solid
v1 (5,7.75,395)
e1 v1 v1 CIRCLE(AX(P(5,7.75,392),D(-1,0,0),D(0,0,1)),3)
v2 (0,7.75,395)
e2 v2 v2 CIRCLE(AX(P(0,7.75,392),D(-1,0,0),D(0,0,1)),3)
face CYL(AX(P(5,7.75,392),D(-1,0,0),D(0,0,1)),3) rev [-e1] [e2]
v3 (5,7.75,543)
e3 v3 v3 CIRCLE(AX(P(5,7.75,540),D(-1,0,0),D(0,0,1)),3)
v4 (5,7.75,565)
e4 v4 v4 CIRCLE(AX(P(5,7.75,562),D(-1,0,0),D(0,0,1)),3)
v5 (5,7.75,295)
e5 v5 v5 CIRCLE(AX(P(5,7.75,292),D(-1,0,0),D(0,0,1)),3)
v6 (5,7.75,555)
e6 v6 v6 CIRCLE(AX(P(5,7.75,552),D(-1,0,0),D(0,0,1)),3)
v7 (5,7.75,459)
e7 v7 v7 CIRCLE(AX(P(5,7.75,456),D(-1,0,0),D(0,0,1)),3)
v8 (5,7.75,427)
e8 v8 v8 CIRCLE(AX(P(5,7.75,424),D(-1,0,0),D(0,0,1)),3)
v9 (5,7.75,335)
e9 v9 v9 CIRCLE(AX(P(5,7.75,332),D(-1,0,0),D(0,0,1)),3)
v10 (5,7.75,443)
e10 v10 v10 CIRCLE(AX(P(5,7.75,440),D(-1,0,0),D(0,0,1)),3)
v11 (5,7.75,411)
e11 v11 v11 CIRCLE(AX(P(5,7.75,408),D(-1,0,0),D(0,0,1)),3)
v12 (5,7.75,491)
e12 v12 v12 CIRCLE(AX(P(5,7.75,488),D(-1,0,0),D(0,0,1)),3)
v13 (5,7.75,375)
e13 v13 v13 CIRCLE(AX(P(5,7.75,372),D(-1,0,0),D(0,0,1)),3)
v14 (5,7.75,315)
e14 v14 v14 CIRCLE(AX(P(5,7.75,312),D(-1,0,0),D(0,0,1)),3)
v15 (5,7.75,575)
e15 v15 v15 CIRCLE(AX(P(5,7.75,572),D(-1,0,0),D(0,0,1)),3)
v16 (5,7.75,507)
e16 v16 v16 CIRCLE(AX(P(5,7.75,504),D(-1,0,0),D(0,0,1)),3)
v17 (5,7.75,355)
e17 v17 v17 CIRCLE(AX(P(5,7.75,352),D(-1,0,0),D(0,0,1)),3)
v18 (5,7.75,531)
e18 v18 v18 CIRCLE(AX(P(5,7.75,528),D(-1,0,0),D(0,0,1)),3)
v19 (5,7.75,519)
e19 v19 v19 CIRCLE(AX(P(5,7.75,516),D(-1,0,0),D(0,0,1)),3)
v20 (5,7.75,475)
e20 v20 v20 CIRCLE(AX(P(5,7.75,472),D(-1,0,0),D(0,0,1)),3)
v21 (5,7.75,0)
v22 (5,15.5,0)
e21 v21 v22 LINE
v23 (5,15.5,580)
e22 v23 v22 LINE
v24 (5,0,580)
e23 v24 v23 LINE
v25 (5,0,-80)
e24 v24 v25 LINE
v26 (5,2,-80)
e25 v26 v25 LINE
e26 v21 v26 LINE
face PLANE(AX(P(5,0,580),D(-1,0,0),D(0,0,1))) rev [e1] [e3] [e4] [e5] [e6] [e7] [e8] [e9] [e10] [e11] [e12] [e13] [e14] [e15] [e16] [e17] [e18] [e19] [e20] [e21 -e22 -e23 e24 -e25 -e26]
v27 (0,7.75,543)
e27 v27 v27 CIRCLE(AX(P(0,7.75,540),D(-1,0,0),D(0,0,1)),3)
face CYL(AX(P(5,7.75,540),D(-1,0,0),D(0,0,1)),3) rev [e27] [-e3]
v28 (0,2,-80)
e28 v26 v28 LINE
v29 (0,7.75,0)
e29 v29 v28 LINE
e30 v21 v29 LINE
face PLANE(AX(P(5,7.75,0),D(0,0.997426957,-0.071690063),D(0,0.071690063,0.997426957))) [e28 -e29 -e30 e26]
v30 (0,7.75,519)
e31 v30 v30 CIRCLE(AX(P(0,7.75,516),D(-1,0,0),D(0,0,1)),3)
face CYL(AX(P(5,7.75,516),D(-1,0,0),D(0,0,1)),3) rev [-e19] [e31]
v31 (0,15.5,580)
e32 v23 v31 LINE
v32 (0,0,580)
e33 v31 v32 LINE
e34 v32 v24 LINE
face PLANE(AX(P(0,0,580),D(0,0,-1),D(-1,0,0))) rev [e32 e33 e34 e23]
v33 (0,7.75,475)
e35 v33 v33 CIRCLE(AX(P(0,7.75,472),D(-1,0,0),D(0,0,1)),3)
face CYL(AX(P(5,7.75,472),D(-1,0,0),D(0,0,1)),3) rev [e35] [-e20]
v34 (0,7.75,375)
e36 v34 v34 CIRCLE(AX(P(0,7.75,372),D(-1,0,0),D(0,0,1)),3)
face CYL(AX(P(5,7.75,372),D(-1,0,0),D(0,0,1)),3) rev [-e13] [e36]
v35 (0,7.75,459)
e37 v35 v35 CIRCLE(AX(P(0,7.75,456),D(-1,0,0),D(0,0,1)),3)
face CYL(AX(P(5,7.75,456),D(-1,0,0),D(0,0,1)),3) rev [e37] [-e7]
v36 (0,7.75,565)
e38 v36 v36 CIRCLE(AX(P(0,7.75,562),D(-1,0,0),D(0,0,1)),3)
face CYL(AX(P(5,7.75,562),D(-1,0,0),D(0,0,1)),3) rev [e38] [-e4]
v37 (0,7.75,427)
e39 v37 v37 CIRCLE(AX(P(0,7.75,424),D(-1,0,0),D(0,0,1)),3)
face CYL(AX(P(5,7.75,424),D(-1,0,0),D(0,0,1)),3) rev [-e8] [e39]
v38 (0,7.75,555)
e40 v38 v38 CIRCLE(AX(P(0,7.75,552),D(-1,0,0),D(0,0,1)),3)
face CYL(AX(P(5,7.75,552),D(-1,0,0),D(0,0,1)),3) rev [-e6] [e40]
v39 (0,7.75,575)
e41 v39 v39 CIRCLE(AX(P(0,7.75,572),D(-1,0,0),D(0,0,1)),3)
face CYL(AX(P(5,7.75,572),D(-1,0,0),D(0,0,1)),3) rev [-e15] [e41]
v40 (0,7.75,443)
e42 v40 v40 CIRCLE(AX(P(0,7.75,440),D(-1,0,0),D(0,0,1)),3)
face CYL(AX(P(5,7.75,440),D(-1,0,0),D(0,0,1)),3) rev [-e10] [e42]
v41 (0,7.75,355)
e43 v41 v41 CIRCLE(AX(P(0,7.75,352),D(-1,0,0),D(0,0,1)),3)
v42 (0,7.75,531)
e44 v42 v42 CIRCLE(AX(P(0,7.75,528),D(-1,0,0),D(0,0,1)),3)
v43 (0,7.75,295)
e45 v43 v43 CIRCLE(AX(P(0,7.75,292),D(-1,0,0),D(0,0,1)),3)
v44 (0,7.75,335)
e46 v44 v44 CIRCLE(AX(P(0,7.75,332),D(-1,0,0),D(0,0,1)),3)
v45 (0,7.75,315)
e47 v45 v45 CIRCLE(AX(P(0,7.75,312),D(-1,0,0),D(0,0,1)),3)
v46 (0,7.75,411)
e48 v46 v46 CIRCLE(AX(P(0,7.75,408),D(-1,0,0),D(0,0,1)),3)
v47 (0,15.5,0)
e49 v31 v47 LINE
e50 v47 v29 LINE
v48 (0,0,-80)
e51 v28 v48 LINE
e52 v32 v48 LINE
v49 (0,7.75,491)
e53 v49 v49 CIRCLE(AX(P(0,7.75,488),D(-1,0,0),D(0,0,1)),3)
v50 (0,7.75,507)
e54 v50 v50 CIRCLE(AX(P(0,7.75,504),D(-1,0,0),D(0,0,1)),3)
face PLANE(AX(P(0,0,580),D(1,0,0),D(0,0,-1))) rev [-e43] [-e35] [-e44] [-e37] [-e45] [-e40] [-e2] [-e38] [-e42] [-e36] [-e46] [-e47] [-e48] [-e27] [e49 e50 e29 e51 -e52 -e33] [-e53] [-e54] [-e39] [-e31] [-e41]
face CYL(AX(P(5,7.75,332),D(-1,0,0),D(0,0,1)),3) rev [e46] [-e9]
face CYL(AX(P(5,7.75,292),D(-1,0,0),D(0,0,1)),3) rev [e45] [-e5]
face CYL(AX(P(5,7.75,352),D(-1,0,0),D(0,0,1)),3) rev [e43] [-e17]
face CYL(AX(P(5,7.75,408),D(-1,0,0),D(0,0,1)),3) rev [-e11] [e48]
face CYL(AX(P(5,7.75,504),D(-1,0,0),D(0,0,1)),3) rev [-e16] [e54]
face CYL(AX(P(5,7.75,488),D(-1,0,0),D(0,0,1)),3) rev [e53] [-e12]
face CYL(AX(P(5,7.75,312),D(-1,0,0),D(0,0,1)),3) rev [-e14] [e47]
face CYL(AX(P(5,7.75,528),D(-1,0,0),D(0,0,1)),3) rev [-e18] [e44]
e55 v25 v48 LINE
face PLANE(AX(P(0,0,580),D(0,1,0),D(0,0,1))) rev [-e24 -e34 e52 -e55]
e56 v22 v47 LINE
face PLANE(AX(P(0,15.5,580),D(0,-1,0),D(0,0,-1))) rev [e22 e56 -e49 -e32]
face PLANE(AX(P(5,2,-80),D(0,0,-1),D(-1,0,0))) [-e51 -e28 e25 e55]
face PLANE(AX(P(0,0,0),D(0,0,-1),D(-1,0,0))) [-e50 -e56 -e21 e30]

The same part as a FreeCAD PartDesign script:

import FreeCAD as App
import Part
import Sketcher

V = App.Vector
Q = App.Units.Quantity


def add_polygon(sketch, points):
    """Adds a closed chain of lines whose ends are joined by coincident constraints."""
    first, n = sketch.GeometryCount, len(points)
    for a, b in zip(points, points[1:] + points[:1]):
        sketch.addGeometry(Part.LineSegment(App.Vector(*a, 0), App.Vector(*b, 0)), False)
    for i in range(n):
        sketch.addConstraint(Sketcher.Constraint("Coincident", first + i, 2, first + (i + 1) % n, 1))

doc = App.newDocument("Part")
body = doc.addObject("PartDesign::Body", "Body")

# Sketch on XY plane
sketch1 = body.newObject("Sketcher::SketchObject", "Sketch")
sketch1.AttachmentSupport = (doc.getObject("XY_Plane"), [""])
sketch1.MapMode = "FlatFace"
add_polygon(sketch1, [(0, 16), (0, 0), (5, 0), (5, 16)])  # lines 0-3
sketch1.addConstraint([
    Sketcher.Constraint("Vertical", 0),
    Sketcher.Constraint("Horizontal", 1),
    Sketcher.Constraint("Vertical", 2),
    Sketcher.Constraint("Horizontal", 3),
    Sketcher.Constraint("Coincident", 0, 2, -1, 1),
    Sketcher.Constraint("DistanceX", 1, 1, 1, 2, Q("5 mm")),
    Sketcher.Constraint("DistanceY", 0, 2, 0, 1, Q("15.5 mm")),
])
pad1 = body.newObject("PartDesign::Pad", "Pad")
pad1.Profile = sketch1
pad1.Length = 580

# Sketch on YZ plane
sketch2 = body.newObject("Sketcher::SketchObject", "Sketch001")
sketch2.AttachmentSupport = (doc.getObject("YZ_Plane"), [""])
sketch2.MapMode = "FlatFace"
add_polygon(sketch2, [(7.8, 0), (2, -80), (0, -80), (0, 0)])  # lines 0-3
sketch2.addConstraint([
    Sketcher.Constraint("Horizontal", 1),
    Sketcher.Constraint("Vertical", 2),
    Sketcher.Constraint("Horizontal", 3),
    Sketcher.Constraint("Coincident", 2, 2, -1, 1),
    Sketcher.Constraint("DistanceX", 1, 2, 1, 1, Q("2 mm")),
    Sketcher.Constraint("DistanceY", 2, 1, 2, 2, Q("80 mm")),
    Sketcher.Constraint("DistanceX", 3, 1, 3, 2, Q("7.75 mm")),
])
pad2 = body.newObject("PartDesign::Pad", "Pad001")
pad2.Profile = sketch2
pad2.Length = 5

# Sketch on YZ plane
sketch3 = body.newObject("Sketcher::SketchObject", "Sketch002")
sketch3.AttachmentSupport = (doc.getObject("YZ_Plane"), [""])
sketch3.MapMode = "FlatFace"
sketch3.addGeometry([
    Part.Circle(V(7.8, 572, 0), V(0, 0, 1), 3),  # 0
    Part.Circle(V(7.8, 562, 0), V(0, 0, 1), 3),  # 1
    Part.Circle(V(7.8, 552, 0), V(0, 0, 1), 3),  # 2
    Part.Circle(V(7.8, 540, 0), V(0, 0, 1), 3),  # 3
    Part.Circle(V(7.8, 528, 0), V(0, 0, 1), 3),  # 4
    Part.Circle(V(7.8, 516, 0), V(0, 0, 1), 3),  # 5
    Part.Circle(V(7.8, 504, 0), V(0, 0, 1), 3),  # 6
    Part.Circle(V(7.8, 488, 0), V(0, 0, 1), 3),  # 7
    Part.Circle(V(7.8, 472, 0), V(0, 0, 1), 3),  # 8
    Part.Circle(V(7.8, 456, 0), V(0, 0, 1), 3),  # 9
    Part.Circle(V(7.8, 440, 0), V(0, 0, 1), 3),  # 10
    Part.Circle(V(7.8, 424, 0), V(0, 0, 1), 3),  # 11
    Part.Circle(V(7.8, 408, 0), V(0, 0, 1), 3),  # 12
    Part.Circle(V(7.8, 392, 0), V(0, 0, 1), 3),  # 13
    Part.Circle(V(7.8, 372, 0), V(0, 0, 1), 3),  # 14
    Part.Circle(V(7.8, 352, 0), V(0, 0, 1), 3),  # 15
    Part.Circle(V(7.8, 332, 0), V(0, 0, 1), 3),  # 16
    Part.Circle(V(7.8, 312, 0), V(0, 0, 1), 3),  # 17
    Part.Circle(V(7.8, 292, 0), V(0, 0, 1), 3),  # 18
], False)
sketch3.addConstraint([
    Sketcher.Constraint("Equal", 0, 1),
    Sketcher.Constraint("Equal", 1, 2),
    Sketcher.Constraint("Equal", 2, 3),
    Sketcher.Constraint("Equal", 3, 4),
    Sketcher.Constraint("Equal", 4, 5),
    Sketcher.Constraint("Equal", 5, 6),
    Sketcher.Constraint("Equal", 6, 7),
    Sketcher.Constraint("Equal", 7, 8),
    Sketcher.Constraint("Equal", 8, 9),
    Sketcher.Constraint("Equal", 9, 10),
    Sketcher.Constraint("Equal", 10, 11),
    Sketcher.Constraint("Equal", 11, 12),
    Sketcher.Constraint("Equal", 12, 13),
    Sketcher.Constraint("Equal", 13, 14),
    Sketcher.Constraint("Equal", 14, 15),
    Sketcher.Constraint("Equal", 15, 16),
    Sketcher.Constraint("Equal", 16, 17),
    Sketcher.Constraint("Equal", 17, 18),
    Sketcher.Constraint("Vertical", 0, 3, 1, 3),
    Sketcher.Constraint("Vertical", 1, 3, 2, 3),
    Sketcher.Constraint("Vertical", 2, 3, 3, 3),
    Sketcher.Constraint("Vertical", 3, 3, 4, 3),
    Sketcher.Constraint("Vertical", 4, 3, 5, 3),
    Sketcher.Constraint("Vertical", 5, 3, 6, 3),
    Sketcher.Constraint("Vertical", 6, 3, 7, 3),
    Sketcher.Constraint("Vertical", 7, 3, 8, 3),
    Sketcher.Constraint("Vertical", 8, 3, 9, 3),
    Sketcher.Constraint("Vertical", 9, 3, 10, 3),
    Sketcher.Constraint("Vertical", 10, 3, 11, 3),
    Sketcher.Constraint("Vertical", 11, 3, 12, 3),
    Sketcher.Constraint("Vertical", 12, 3, 13, 3),
    Sketcher.Constraint("Vertical", 13, 3, 14, 3),
    Sketcher.Constraint("Vertical", 14, 3, 15, 3),
    Sketcher.Constraint("Vertical", 15, 3, 16, 3),
    Sketcher.Constraint("Vertical", 16, 3, 17, 3),
    Sketcher.Constraint("Vertical", 17, 3, 18, 3),
    Sketcher.Constraint("Diameter", 0, Q("6 mm")),
    Sketcher.Constraint("DistanceY", -1, 1, 0, 3, Q("572 mm")),
    Sketcher.Constraint("DistanceY", -1, 1, 1, 3, Q("562 mm")),
    Sketcher.Constraint("DistanceY", -1, 1, 2, 3, Q("552 mm")),
    Sketcher.Constraint("DistanceY", -1, 1, 3, 3, Q("540 mm")),
    Sketcher.Constraint("DistanceY", -1, 1, 4, 3, Q("528 mm")),
    Sketcher.Constraint("DistanceY", -1, 1, 5, 3, Q("516 mm")),
    Sketcher.Constraint("DistanceY", -1, 1, 6, 3, Q("504 mm")),
    Sketcher.Constraint("DistanceY", -1, 1, 7, 3, Q("488 mm")),
    Sketcher.Constraint("DistanceY", -1, 1, 8, 3, Q("472 mm")),
    Sketcher.Constraint("DistanceY", -1, 1, 9, 3, Q("456 mm")),
    Sketcher.Constraint("DistanceY", -1, 1, 10, 3, Q("440 mm")),
    Sketcher.Constraint("DistanceY", -1, 1, 11, 3, Q("424 mm")),
    Sketcher.Constraint("DistanceY", -1, 1, 12, 3, Q("408 mm")),
    Sketcher.Constraint("DistanceY", -1, 1, 13, 3, Q("392 mm")),
    Sketcher.Constraint("DistanceY", -1, 1, 14, 3, Q("372 mm")),
    Sketcher.Constraint("DistanceY", -1, 1, 15, 3, Q("352 mm")),
    Sketcher.Constraint("DistanceY", -1, 1, 16, 3, Q("332 mm")),
    Sketcher.Constraint("DistanceY", -1, 1, 17, 3, Q("312 mm")),
    Sketcher.Constraint("DistanceY", -1, 1, 18, 3, Q("292 mm")),
    Sketcher.Constraint("DistanceX", -1, 1, 0, 3, Q("7.75 mm")),
])
pocket1 = body.newObject("PartDesign::Pocket", "Pocket")
pocket1.Profile = sketch3
pocket1.Type = "ThroughAll"
pocket1.Reversed = True

doc.recompute()
